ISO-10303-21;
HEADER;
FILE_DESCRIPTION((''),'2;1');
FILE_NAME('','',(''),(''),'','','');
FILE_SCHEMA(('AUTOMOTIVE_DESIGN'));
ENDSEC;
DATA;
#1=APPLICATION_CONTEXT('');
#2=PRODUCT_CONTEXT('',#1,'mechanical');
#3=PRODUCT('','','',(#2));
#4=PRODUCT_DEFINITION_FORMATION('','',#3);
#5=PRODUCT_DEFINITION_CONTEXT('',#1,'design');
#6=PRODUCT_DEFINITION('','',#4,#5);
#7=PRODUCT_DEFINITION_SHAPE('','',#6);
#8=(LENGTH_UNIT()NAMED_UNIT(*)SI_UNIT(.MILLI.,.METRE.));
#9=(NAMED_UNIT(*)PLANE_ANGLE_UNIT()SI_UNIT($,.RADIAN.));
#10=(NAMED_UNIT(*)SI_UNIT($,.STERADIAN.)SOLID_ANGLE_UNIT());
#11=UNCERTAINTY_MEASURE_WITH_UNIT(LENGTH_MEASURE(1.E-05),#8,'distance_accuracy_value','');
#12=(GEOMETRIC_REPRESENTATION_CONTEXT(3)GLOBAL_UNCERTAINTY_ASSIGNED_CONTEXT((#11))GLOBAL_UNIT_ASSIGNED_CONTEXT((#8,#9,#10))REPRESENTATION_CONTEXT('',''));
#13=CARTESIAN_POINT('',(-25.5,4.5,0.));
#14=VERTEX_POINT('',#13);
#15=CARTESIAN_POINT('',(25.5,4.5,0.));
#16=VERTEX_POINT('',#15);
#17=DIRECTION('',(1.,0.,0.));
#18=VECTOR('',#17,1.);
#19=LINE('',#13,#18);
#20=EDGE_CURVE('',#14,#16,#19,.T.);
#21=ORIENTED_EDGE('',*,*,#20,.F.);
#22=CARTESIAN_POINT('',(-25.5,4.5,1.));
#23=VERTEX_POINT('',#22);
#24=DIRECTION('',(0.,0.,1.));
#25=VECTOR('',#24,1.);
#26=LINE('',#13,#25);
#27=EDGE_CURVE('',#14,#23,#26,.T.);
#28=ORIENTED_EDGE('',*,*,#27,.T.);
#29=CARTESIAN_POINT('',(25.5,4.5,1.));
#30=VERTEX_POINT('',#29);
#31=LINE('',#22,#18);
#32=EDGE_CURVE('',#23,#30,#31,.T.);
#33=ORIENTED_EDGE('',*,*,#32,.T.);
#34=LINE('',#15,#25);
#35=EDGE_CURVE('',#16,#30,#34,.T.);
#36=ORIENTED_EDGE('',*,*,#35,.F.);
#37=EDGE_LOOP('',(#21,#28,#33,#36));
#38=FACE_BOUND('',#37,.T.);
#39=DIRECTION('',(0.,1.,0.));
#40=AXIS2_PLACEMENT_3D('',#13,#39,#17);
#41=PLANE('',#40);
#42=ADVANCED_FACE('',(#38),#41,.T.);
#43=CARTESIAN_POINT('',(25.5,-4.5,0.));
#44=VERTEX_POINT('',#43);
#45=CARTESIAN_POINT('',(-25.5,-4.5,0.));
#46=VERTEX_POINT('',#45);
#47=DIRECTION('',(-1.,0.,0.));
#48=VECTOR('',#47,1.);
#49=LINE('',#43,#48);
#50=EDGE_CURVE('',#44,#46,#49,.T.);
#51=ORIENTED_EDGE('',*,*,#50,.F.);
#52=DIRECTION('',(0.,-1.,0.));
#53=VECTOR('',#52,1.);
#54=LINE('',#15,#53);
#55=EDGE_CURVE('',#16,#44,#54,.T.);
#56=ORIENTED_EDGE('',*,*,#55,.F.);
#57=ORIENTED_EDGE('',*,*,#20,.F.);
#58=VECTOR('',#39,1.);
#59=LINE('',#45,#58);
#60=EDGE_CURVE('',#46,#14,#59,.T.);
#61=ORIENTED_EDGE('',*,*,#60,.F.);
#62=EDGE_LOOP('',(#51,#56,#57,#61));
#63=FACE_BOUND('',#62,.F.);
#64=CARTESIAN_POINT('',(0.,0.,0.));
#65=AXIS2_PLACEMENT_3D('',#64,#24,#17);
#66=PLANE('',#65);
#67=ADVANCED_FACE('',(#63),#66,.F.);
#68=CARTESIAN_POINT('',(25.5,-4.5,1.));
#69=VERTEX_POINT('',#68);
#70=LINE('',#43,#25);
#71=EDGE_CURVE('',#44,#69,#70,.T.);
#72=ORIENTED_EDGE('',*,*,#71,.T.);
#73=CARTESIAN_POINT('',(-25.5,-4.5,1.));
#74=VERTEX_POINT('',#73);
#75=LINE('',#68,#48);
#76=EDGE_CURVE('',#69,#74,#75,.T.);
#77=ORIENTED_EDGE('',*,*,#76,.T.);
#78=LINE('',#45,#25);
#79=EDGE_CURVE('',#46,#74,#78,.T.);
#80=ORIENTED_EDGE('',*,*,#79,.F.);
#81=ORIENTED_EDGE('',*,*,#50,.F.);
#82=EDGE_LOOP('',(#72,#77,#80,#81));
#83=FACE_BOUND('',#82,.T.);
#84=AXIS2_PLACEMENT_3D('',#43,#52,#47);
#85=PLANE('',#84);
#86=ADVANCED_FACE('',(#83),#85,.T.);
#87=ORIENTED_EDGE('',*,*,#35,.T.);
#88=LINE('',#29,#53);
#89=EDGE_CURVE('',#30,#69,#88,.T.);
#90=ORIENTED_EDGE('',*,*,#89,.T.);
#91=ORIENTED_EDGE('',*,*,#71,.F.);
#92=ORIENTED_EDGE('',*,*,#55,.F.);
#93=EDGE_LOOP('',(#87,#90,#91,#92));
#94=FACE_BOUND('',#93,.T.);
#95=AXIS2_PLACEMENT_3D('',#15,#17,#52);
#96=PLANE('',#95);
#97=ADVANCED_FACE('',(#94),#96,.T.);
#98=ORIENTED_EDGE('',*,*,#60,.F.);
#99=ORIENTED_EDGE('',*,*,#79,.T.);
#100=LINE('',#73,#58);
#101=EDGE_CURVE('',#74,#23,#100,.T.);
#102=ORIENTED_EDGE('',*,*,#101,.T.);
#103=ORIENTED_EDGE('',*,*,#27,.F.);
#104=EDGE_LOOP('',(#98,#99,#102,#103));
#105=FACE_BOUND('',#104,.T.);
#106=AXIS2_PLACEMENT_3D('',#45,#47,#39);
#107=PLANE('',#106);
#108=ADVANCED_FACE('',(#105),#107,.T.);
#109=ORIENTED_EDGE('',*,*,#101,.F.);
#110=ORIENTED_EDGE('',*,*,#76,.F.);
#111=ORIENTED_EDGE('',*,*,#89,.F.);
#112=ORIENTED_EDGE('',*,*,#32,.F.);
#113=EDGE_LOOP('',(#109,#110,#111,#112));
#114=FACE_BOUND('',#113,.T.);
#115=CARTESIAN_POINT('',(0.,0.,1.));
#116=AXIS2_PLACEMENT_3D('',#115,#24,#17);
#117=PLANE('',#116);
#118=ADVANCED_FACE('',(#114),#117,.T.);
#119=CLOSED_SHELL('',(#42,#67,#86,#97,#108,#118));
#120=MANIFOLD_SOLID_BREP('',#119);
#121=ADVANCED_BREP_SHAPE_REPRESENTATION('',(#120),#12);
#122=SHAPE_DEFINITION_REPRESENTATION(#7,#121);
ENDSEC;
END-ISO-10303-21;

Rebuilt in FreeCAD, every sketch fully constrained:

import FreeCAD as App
import Part
import Sketcher
from FreeCAD import Vector
Q = App.Units.Quantity


def add_polygon(sketch, points):
    """Adds a closed chain of lines whose ends are joined by coincident constraints."""
    first, n = sketch.GeometryCount, len(points)
    for a, b in zip(points, points[1:] + points[:1]):
        sketch.addGeometry(Part.LineSegment(App.Vector(*a, 0), App.Vector(*b, 0)), False)
    for i in range(n):
        sketch.addConstraint(Sketcher.Constraint("Coincident", first + i, 2, first + (i + 1) % n, 1))

doc = App.newDocument("Part")
body = doc.addObject("PartDesign::Body", "Body")

# Sketch on XY plane
sketch1 = doc.addObject("Sketcher::SketchObject", "Sketch")
body.addObject(sketch1)
sketch1.AttachmentSupport = (doc.XY_Plane, [""])
sketch1.MapMode = "FlatFace"
add_polygon(sketch1, [(26, 4), (-26, 4), (-26, -4), (26, -4)])  # lines 0-3
sketch1.addConstraint([
    Sketcher.Constraint("Horizontal", 0),
    Sketcher.Constraint("Vertical", 1),
    Sketcher.Constraint("Horizontal", 2),
    Sketcher.Constraint("Vertical", 3),
    Sketcher.Constraint("Symmetric", 0, 2, 2, 2, -1, 1),
    Sketcher.Constraint("DistanceX", 0, 2, 0, 1, Q("51 mm")),
    Sketcher.Constraint("DistanceY", 1, 2, 1, 1, Q("9 mm")),
])
pad1 = doc.addObject("PartDesign::Pad", "Pad")
body.addObject(pad1)
pad1.Profile = sketch1
pad1.Length = 1

doc.recompute()
